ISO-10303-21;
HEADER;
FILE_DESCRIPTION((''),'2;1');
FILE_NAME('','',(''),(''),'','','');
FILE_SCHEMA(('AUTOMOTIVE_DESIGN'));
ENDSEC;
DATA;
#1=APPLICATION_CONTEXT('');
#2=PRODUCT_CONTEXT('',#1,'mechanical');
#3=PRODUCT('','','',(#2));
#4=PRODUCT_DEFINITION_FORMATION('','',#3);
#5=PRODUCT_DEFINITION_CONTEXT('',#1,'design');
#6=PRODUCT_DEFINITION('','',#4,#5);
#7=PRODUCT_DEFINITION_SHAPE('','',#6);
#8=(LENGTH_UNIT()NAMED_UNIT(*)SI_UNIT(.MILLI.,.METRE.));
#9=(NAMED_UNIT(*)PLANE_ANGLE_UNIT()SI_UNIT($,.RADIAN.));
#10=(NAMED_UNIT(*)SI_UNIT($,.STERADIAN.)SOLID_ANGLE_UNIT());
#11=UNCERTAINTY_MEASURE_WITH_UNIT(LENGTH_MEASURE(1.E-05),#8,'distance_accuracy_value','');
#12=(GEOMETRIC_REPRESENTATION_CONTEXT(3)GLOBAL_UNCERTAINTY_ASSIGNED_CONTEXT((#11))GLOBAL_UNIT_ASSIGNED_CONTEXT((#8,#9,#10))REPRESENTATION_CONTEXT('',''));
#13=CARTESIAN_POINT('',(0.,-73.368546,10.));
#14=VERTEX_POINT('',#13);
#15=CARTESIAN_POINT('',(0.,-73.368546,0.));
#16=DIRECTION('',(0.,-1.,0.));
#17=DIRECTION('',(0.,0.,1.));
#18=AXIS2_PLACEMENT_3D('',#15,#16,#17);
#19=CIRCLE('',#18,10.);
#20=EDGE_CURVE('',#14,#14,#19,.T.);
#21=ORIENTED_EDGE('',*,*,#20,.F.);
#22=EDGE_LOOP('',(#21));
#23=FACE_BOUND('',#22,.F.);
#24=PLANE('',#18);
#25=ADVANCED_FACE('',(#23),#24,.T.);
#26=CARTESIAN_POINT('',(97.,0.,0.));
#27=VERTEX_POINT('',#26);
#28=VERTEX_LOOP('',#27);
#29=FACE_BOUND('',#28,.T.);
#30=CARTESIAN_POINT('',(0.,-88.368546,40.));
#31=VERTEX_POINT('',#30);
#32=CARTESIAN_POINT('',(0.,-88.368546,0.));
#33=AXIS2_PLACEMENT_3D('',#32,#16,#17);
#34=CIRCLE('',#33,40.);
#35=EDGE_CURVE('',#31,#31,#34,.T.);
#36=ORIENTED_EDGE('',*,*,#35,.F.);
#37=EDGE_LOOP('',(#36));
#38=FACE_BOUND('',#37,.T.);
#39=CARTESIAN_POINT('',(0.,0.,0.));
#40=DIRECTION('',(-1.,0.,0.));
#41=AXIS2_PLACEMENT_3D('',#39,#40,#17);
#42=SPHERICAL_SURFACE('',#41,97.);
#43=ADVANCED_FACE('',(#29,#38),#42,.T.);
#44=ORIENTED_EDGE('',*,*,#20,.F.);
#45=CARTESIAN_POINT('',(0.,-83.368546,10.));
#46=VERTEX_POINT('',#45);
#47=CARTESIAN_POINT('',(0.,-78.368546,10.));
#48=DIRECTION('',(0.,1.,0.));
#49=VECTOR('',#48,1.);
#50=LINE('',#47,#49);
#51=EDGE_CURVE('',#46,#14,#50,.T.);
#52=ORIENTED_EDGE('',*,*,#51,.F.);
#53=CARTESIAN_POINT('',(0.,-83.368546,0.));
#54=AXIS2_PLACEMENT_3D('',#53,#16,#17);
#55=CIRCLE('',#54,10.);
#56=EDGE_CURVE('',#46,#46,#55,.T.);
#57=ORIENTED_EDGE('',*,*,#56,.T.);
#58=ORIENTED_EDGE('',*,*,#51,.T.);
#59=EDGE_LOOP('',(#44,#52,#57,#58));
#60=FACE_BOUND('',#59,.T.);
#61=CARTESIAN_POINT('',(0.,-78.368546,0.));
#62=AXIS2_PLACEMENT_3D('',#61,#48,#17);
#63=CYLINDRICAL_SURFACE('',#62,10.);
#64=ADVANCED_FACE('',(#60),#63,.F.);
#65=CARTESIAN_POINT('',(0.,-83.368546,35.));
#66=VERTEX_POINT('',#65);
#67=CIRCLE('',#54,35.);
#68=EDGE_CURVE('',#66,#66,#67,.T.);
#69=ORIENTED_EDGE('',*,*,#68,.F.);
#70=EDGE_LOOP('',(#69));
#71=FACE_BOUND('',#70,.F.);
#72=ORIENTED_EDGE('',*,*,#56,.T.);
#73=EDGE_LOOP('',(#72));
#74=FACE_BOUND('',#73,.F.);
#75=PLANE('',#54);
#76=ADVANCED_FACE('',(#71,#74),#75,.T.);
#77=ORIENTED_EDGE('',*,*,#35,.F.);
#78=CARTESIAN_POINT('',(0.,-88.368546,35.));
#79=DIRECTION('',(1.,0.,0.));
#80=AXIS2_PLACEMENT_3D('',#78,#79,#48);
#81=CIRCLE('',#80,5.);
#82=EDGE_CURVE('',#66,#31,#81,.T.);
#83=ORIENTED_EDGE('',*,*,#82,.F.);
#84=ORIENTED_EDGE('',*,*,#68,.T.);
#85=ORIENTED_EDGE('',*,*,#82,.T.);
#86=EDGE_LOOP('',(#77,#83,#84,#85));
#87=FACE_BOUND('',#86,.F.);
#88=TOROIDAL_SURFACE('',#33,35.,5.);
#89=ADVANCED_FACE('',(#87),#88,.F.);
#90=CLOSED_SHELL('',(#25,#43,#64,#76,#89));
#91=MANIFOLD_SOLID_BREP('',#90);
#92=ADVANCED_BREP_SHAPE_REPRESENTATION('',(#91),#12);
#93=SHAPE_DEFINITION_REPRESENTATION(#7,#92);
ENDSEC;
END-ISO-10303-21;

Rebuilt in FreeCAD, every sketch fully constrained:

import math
import FreeCAD as App
import Part
import Sketcher

doc = App.newDocument("Part")
body = doc.addObject("PartDesign::Body", "Body")

sketch1 = doc.addObject("Sketcher::SketchObject", "Sketch")
body.addObject(sketch1)
sketch1.AttachmentSupport = (doc.XZ_Plane, [""])
sketch1.MapMode = "FlatFace"
sketch1.addGeometry([
    Part.ArcOfCircle(Part.Circle(App.Vector(0, 0, 0), App.Vector(0, 0, 1), 97), math.radians(0), math.radians(180)),
    Part.LineSegment(App.Vector(-97, 0, 0), App.Vector(97, 0, 0)),
], False)
sketch1.addConstraint([
    Sketcher.Constraint("Coincident", 0, 1, 1, 2),
    Sketcher.Constraint("Coincident", 1, 1, 0, 2),
    Sketcher.Constraint("Horizontal", 1),
    Sketcher.Constraint("Coincident", 0, 3, -1, 1),
    Sketcher.Constraint("PointOnObject", 0, 1, -1),
    Sketcher.Constraint("Radius", 0, 97.0),
])
revolution = doc.addObject("PartDesign::Revolution", "Revolution")
body.addObject(revolution)
revolution.Profile = sketch1
revolution.ReferenceAxis = (sketch1, ["H_Axis"])
revolution.Angle = 360

sketch2 = doc.addObject("Sketcher::SketchObject", "Sketch001")
body.addObject(sketch2)
sketch2.AttachmentSupport = (doc.YZ_Plane, [""])
sketch2.MapMode = "FlatFace"
sketch2.addGeometry([
    Part.ArcOfCircle(Part.Circle(App.Vector(-88.368546, 35, 0), App.Vector(0, 0, 1), 5), math.radians(0), math.radians(90)),
    Part.ArcOfCircle(Part.Circle(App.Vector(0, 0, 0), App.Vector(0, 0, 1), 97), math.radians(155.646127), math.radians(161.139954)),
    Part.ArcOfCircle(Part.Circle(App.Vector(0, 0, 0), App.Vector(0, 0, 1), 97), math.radians(161.139954), math.radians(180)),
    Part.LineSegment(App.Vector(-97, 0, 0), App.Vector(-73.368546, 0, 0)),
    Part.LineSegment(App.Vector(-73.368546, 0, 0), App.Vector(-73.368546, 10, 0)),
    Part.LineSegment(App.Vector(-73.368546, 10, 0), App.Vector(-83.368546, 10, 0)),
    Part.LineSegment(App.Vector(-83.368546, 10, 0), App.Vector(-83.368546, 35, 0)),
], False)
sketch2.addConstraint([
    Sketcher.Constraint("Coincident", 0, 2, 1, 1),
    Sketcher.Constraint("Tangent", 1, 2, 2, 1),
    Sketcher.Constraint("Coincident", 2, 2, 3, 1),
    Sketcher.Constraint("Coincident", 3, 2, 4, 1),
    Sketcher.Constraint("Coincident", 4, 2, 5, 1),
    Sketcher.Constraint("Coincident", 5, 2, 6, 1),
    Sketcher.Constraint("Tangent", 6, 2, 0, 1),
    Sketcher.Constraint("Horizontal", 3),
    Sketcher.Constraint("Vertical", 4),
    Sketcher.Constraint("Horizontal", 5),
    Sketcher.Constraint("Vertical", 6),
    Sketcher.Constraint("Coincident", 1, 3, -1, 1),
    Sketcher.Constraint("Equal", 1, 2),
    Sketcher.Constraint("PointOnObject", 2, 2, -1),
    Sketcher.Constraint("Equal", 5, 4),
    Sketcher.Constraint("Radius", 0, 5.0),
    Sketcher.Constraint("Radius", 1, 97.0),
    Sketcher.Constraint("DistanceX", 5, 2, 5, 1, 10.0),
    Sketcher.Constraint("DistanceY", 6, 1, 6, 2, 25.0),
    Sketcher.Constraint("DistanceX", 0, 2, 3, 2, 15.0),
    Sketcher.Constraint("DistanceY", -1, 1, 1, 2, 31.355988),
])
groove = doc.addObject("PartDesign::Groove", "Groove")
body.addObject(groove)
groove.Profile = sketch2
groove.ReferenceAxis = (sketch2, ["H_Axis"])
groove.Angle = 360

doc.recompute()
